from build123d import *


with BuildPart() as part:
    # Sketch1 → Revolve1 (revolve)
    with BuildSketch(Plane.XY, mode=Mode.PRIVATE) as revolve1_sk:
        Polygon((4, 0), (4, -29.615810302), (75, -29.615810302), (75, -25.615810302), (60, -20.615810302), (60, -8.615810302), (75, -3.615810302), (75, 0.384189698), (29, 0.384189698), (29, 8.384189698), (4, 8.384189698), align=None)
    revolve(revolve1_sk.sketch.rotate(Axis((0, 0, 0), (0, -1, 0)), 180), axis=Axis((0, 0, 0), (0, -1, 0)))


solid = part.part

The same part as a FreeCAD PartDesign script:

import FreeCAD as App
import Part
import Sketcher
Q = App.Units.Quantity

doc = App.newDocument("Part")
body = doc.addObject("PartDesign::Body", "Body")

# Sketch on XY plane
sketch1 = body.newObject("Sketcher::SketchObject", "Sketch")
sketch1.AttachmentSupport = (doc.getObject("XY_Plane"), [""])
sketch1.MapMode = "FlatFace"
sketch1.addGeometry(Part.LineSegment(App.Vector(4, -29.6, 0), App.Vector(75, -29.6, 0)), False)
sketch1.addGeometry(Part.LineSegment(App.Vector(75, -29.6, 0), App.Vector(75, -25.6, 0)), False)
sketch1.addGeometry(Part.LineSegment(App.Vector(75, -25.6, 0), App.Vector(60, -20.6, 0)), False)
sketch1.addGeometry(Part.LineSegment(App.Vector(60, -20.6, 0), App.Vector(60, -8.6, 0)), False)
sketch1.addGeometry(Part.LineSegment(App.Vector(60, -8.6, 0), App.Vector(75, -3.6, 0)), False)
sketch1.addGeometry(Part.LineSegment(App.Vector(75, -3.6, 0), App.Vector(75, 0.4, 0)), False)
sketch1.addGeometry(Part.LineSegment(App.Vector(75, 0.4, 0), App.Vector(29, 0.4, 0)), False)
sketch1.addGeometry(Part.LineSegment(App.Vector(29, 0.4, 0), App.Vector(29, 8.4, 0)), False)
sketch1.addGeometry(Part.LineSegment(App.Vector(29, 8.4, 0), App.Vector(4, 8.4, 0)), False)
sketch1.addGeometry(Part.LineSegment(App.Vector(4, 8.4, 0), App.Vector(4, -29.6, 0)), False)
sketch1.addConstraint(Sketcher.Constraint("Coincident", 0, 2, 1, 1))
sketch1.addConstraint(Sketcher.Constraint("Coincident", 1, 2, 2, 1))
sketch1.addConstraint(Sketcher.Constraint("Coincident", 2, 2, 3, 1))
sketch1.addConstraint(Sketcher.Constraint("Coincident", 3, 2, 4, 1))
sketch1.addConstraint(Sketcher.Constraint("Coincident", 4, 2, 5, 1))
sketch1.addConstraint(Sketcher.Constraint("Coincident", 5, 2, 6, 1))
sketch1.addConstraint(Sketcher.Constraint("Coincident", 6, 2, 7, 1))
sketch1.addConstraint(Sketcher.Constraint("Coincident", 7, 2, 8, 1))
sketch1.addConstraint(Sketcher.Constraint("Coincident", 8, 2, 9, 1))
sketch1.addConstraint(Sketcher.Constraint("Coincident", 9, 2, 0, 1))
sketch1.addConstraint(Sketcher.Constraint("Horizontal", 0))
sketch1.addConstraint(Sketcher.Constraint("Vertical", 1))
sketch1.addConstraint(Sketcher.Constraint("Vertical", 3))
sketch1.addConstraint(Sketcher.Constraint("Vertical", 5))
sketch1.addConstraint(Sketcher.Constraint("Horizontal", 6))
sketch1.addConstraint(Sketcher.Constraint("Vertical", 7))
sketch1.addConstraint(Sketcher.Constraint("Horizontal", 8))
sketch1.addConstraint(Sketcher.Constraint("Vertical", 9))
sketch1.addConstraint(Sketcher.Constraint("Vertical", 1, 2, 4, 2))
sketch1.addConstraint(Sketcher.Constraint("Equal", 1, 5))
sketch1.addConstraint(Sketcher.Constraint("Equal", 2, 4))
sketch1.addConstraint(Sketcher.Constraint("DistanceX", 0, 1, 0, 2, Q("71 mm")))
sketch1.addConstraint(Sketcher.Constraint("DistanceX", 6, 2, 6, 1, Q("46 mm")))
sketch1.addConstraint(Sketcher.Constraint("DistanceY", 1, 1, 1, 2, Q("4 mm")))
sketch1.addConstraint(Sketcher.Constraint("DistanceY", 3, 1, 3, 2, Q("12 mm")))
sketch1.addConstraint(Sketcher.Constraint("DistanceY", 7, 1, 7, 2, Q("8 mm")))
sketch1.addConstraint(Sketcher.Constraint("DistanceY", 9, 2, 9, 1, Q("38 mm")))
sketch1.addConstraint(Sketcher.Constraint("DistanceX", -1, 1, 0, 2, Q("75 mm")))
sketch1.addConstraint(Sketcher.Constraint("DistanceX", -1, 1, 2, 2, Q("60 mm")))
sketch1.addConstraint(Sketcher.Constraint("DistanceY", 0, 2, -1, 1, Q("29.61581 mm")))
revolution = body.newObject("PartDesign::Revolution", "Revolution")
revolution.Profile = sketch1
revolution.ReferenceAxis = (sketch1, ["V_Axis"])
revolution.Angle = 360

doc.recompute()
